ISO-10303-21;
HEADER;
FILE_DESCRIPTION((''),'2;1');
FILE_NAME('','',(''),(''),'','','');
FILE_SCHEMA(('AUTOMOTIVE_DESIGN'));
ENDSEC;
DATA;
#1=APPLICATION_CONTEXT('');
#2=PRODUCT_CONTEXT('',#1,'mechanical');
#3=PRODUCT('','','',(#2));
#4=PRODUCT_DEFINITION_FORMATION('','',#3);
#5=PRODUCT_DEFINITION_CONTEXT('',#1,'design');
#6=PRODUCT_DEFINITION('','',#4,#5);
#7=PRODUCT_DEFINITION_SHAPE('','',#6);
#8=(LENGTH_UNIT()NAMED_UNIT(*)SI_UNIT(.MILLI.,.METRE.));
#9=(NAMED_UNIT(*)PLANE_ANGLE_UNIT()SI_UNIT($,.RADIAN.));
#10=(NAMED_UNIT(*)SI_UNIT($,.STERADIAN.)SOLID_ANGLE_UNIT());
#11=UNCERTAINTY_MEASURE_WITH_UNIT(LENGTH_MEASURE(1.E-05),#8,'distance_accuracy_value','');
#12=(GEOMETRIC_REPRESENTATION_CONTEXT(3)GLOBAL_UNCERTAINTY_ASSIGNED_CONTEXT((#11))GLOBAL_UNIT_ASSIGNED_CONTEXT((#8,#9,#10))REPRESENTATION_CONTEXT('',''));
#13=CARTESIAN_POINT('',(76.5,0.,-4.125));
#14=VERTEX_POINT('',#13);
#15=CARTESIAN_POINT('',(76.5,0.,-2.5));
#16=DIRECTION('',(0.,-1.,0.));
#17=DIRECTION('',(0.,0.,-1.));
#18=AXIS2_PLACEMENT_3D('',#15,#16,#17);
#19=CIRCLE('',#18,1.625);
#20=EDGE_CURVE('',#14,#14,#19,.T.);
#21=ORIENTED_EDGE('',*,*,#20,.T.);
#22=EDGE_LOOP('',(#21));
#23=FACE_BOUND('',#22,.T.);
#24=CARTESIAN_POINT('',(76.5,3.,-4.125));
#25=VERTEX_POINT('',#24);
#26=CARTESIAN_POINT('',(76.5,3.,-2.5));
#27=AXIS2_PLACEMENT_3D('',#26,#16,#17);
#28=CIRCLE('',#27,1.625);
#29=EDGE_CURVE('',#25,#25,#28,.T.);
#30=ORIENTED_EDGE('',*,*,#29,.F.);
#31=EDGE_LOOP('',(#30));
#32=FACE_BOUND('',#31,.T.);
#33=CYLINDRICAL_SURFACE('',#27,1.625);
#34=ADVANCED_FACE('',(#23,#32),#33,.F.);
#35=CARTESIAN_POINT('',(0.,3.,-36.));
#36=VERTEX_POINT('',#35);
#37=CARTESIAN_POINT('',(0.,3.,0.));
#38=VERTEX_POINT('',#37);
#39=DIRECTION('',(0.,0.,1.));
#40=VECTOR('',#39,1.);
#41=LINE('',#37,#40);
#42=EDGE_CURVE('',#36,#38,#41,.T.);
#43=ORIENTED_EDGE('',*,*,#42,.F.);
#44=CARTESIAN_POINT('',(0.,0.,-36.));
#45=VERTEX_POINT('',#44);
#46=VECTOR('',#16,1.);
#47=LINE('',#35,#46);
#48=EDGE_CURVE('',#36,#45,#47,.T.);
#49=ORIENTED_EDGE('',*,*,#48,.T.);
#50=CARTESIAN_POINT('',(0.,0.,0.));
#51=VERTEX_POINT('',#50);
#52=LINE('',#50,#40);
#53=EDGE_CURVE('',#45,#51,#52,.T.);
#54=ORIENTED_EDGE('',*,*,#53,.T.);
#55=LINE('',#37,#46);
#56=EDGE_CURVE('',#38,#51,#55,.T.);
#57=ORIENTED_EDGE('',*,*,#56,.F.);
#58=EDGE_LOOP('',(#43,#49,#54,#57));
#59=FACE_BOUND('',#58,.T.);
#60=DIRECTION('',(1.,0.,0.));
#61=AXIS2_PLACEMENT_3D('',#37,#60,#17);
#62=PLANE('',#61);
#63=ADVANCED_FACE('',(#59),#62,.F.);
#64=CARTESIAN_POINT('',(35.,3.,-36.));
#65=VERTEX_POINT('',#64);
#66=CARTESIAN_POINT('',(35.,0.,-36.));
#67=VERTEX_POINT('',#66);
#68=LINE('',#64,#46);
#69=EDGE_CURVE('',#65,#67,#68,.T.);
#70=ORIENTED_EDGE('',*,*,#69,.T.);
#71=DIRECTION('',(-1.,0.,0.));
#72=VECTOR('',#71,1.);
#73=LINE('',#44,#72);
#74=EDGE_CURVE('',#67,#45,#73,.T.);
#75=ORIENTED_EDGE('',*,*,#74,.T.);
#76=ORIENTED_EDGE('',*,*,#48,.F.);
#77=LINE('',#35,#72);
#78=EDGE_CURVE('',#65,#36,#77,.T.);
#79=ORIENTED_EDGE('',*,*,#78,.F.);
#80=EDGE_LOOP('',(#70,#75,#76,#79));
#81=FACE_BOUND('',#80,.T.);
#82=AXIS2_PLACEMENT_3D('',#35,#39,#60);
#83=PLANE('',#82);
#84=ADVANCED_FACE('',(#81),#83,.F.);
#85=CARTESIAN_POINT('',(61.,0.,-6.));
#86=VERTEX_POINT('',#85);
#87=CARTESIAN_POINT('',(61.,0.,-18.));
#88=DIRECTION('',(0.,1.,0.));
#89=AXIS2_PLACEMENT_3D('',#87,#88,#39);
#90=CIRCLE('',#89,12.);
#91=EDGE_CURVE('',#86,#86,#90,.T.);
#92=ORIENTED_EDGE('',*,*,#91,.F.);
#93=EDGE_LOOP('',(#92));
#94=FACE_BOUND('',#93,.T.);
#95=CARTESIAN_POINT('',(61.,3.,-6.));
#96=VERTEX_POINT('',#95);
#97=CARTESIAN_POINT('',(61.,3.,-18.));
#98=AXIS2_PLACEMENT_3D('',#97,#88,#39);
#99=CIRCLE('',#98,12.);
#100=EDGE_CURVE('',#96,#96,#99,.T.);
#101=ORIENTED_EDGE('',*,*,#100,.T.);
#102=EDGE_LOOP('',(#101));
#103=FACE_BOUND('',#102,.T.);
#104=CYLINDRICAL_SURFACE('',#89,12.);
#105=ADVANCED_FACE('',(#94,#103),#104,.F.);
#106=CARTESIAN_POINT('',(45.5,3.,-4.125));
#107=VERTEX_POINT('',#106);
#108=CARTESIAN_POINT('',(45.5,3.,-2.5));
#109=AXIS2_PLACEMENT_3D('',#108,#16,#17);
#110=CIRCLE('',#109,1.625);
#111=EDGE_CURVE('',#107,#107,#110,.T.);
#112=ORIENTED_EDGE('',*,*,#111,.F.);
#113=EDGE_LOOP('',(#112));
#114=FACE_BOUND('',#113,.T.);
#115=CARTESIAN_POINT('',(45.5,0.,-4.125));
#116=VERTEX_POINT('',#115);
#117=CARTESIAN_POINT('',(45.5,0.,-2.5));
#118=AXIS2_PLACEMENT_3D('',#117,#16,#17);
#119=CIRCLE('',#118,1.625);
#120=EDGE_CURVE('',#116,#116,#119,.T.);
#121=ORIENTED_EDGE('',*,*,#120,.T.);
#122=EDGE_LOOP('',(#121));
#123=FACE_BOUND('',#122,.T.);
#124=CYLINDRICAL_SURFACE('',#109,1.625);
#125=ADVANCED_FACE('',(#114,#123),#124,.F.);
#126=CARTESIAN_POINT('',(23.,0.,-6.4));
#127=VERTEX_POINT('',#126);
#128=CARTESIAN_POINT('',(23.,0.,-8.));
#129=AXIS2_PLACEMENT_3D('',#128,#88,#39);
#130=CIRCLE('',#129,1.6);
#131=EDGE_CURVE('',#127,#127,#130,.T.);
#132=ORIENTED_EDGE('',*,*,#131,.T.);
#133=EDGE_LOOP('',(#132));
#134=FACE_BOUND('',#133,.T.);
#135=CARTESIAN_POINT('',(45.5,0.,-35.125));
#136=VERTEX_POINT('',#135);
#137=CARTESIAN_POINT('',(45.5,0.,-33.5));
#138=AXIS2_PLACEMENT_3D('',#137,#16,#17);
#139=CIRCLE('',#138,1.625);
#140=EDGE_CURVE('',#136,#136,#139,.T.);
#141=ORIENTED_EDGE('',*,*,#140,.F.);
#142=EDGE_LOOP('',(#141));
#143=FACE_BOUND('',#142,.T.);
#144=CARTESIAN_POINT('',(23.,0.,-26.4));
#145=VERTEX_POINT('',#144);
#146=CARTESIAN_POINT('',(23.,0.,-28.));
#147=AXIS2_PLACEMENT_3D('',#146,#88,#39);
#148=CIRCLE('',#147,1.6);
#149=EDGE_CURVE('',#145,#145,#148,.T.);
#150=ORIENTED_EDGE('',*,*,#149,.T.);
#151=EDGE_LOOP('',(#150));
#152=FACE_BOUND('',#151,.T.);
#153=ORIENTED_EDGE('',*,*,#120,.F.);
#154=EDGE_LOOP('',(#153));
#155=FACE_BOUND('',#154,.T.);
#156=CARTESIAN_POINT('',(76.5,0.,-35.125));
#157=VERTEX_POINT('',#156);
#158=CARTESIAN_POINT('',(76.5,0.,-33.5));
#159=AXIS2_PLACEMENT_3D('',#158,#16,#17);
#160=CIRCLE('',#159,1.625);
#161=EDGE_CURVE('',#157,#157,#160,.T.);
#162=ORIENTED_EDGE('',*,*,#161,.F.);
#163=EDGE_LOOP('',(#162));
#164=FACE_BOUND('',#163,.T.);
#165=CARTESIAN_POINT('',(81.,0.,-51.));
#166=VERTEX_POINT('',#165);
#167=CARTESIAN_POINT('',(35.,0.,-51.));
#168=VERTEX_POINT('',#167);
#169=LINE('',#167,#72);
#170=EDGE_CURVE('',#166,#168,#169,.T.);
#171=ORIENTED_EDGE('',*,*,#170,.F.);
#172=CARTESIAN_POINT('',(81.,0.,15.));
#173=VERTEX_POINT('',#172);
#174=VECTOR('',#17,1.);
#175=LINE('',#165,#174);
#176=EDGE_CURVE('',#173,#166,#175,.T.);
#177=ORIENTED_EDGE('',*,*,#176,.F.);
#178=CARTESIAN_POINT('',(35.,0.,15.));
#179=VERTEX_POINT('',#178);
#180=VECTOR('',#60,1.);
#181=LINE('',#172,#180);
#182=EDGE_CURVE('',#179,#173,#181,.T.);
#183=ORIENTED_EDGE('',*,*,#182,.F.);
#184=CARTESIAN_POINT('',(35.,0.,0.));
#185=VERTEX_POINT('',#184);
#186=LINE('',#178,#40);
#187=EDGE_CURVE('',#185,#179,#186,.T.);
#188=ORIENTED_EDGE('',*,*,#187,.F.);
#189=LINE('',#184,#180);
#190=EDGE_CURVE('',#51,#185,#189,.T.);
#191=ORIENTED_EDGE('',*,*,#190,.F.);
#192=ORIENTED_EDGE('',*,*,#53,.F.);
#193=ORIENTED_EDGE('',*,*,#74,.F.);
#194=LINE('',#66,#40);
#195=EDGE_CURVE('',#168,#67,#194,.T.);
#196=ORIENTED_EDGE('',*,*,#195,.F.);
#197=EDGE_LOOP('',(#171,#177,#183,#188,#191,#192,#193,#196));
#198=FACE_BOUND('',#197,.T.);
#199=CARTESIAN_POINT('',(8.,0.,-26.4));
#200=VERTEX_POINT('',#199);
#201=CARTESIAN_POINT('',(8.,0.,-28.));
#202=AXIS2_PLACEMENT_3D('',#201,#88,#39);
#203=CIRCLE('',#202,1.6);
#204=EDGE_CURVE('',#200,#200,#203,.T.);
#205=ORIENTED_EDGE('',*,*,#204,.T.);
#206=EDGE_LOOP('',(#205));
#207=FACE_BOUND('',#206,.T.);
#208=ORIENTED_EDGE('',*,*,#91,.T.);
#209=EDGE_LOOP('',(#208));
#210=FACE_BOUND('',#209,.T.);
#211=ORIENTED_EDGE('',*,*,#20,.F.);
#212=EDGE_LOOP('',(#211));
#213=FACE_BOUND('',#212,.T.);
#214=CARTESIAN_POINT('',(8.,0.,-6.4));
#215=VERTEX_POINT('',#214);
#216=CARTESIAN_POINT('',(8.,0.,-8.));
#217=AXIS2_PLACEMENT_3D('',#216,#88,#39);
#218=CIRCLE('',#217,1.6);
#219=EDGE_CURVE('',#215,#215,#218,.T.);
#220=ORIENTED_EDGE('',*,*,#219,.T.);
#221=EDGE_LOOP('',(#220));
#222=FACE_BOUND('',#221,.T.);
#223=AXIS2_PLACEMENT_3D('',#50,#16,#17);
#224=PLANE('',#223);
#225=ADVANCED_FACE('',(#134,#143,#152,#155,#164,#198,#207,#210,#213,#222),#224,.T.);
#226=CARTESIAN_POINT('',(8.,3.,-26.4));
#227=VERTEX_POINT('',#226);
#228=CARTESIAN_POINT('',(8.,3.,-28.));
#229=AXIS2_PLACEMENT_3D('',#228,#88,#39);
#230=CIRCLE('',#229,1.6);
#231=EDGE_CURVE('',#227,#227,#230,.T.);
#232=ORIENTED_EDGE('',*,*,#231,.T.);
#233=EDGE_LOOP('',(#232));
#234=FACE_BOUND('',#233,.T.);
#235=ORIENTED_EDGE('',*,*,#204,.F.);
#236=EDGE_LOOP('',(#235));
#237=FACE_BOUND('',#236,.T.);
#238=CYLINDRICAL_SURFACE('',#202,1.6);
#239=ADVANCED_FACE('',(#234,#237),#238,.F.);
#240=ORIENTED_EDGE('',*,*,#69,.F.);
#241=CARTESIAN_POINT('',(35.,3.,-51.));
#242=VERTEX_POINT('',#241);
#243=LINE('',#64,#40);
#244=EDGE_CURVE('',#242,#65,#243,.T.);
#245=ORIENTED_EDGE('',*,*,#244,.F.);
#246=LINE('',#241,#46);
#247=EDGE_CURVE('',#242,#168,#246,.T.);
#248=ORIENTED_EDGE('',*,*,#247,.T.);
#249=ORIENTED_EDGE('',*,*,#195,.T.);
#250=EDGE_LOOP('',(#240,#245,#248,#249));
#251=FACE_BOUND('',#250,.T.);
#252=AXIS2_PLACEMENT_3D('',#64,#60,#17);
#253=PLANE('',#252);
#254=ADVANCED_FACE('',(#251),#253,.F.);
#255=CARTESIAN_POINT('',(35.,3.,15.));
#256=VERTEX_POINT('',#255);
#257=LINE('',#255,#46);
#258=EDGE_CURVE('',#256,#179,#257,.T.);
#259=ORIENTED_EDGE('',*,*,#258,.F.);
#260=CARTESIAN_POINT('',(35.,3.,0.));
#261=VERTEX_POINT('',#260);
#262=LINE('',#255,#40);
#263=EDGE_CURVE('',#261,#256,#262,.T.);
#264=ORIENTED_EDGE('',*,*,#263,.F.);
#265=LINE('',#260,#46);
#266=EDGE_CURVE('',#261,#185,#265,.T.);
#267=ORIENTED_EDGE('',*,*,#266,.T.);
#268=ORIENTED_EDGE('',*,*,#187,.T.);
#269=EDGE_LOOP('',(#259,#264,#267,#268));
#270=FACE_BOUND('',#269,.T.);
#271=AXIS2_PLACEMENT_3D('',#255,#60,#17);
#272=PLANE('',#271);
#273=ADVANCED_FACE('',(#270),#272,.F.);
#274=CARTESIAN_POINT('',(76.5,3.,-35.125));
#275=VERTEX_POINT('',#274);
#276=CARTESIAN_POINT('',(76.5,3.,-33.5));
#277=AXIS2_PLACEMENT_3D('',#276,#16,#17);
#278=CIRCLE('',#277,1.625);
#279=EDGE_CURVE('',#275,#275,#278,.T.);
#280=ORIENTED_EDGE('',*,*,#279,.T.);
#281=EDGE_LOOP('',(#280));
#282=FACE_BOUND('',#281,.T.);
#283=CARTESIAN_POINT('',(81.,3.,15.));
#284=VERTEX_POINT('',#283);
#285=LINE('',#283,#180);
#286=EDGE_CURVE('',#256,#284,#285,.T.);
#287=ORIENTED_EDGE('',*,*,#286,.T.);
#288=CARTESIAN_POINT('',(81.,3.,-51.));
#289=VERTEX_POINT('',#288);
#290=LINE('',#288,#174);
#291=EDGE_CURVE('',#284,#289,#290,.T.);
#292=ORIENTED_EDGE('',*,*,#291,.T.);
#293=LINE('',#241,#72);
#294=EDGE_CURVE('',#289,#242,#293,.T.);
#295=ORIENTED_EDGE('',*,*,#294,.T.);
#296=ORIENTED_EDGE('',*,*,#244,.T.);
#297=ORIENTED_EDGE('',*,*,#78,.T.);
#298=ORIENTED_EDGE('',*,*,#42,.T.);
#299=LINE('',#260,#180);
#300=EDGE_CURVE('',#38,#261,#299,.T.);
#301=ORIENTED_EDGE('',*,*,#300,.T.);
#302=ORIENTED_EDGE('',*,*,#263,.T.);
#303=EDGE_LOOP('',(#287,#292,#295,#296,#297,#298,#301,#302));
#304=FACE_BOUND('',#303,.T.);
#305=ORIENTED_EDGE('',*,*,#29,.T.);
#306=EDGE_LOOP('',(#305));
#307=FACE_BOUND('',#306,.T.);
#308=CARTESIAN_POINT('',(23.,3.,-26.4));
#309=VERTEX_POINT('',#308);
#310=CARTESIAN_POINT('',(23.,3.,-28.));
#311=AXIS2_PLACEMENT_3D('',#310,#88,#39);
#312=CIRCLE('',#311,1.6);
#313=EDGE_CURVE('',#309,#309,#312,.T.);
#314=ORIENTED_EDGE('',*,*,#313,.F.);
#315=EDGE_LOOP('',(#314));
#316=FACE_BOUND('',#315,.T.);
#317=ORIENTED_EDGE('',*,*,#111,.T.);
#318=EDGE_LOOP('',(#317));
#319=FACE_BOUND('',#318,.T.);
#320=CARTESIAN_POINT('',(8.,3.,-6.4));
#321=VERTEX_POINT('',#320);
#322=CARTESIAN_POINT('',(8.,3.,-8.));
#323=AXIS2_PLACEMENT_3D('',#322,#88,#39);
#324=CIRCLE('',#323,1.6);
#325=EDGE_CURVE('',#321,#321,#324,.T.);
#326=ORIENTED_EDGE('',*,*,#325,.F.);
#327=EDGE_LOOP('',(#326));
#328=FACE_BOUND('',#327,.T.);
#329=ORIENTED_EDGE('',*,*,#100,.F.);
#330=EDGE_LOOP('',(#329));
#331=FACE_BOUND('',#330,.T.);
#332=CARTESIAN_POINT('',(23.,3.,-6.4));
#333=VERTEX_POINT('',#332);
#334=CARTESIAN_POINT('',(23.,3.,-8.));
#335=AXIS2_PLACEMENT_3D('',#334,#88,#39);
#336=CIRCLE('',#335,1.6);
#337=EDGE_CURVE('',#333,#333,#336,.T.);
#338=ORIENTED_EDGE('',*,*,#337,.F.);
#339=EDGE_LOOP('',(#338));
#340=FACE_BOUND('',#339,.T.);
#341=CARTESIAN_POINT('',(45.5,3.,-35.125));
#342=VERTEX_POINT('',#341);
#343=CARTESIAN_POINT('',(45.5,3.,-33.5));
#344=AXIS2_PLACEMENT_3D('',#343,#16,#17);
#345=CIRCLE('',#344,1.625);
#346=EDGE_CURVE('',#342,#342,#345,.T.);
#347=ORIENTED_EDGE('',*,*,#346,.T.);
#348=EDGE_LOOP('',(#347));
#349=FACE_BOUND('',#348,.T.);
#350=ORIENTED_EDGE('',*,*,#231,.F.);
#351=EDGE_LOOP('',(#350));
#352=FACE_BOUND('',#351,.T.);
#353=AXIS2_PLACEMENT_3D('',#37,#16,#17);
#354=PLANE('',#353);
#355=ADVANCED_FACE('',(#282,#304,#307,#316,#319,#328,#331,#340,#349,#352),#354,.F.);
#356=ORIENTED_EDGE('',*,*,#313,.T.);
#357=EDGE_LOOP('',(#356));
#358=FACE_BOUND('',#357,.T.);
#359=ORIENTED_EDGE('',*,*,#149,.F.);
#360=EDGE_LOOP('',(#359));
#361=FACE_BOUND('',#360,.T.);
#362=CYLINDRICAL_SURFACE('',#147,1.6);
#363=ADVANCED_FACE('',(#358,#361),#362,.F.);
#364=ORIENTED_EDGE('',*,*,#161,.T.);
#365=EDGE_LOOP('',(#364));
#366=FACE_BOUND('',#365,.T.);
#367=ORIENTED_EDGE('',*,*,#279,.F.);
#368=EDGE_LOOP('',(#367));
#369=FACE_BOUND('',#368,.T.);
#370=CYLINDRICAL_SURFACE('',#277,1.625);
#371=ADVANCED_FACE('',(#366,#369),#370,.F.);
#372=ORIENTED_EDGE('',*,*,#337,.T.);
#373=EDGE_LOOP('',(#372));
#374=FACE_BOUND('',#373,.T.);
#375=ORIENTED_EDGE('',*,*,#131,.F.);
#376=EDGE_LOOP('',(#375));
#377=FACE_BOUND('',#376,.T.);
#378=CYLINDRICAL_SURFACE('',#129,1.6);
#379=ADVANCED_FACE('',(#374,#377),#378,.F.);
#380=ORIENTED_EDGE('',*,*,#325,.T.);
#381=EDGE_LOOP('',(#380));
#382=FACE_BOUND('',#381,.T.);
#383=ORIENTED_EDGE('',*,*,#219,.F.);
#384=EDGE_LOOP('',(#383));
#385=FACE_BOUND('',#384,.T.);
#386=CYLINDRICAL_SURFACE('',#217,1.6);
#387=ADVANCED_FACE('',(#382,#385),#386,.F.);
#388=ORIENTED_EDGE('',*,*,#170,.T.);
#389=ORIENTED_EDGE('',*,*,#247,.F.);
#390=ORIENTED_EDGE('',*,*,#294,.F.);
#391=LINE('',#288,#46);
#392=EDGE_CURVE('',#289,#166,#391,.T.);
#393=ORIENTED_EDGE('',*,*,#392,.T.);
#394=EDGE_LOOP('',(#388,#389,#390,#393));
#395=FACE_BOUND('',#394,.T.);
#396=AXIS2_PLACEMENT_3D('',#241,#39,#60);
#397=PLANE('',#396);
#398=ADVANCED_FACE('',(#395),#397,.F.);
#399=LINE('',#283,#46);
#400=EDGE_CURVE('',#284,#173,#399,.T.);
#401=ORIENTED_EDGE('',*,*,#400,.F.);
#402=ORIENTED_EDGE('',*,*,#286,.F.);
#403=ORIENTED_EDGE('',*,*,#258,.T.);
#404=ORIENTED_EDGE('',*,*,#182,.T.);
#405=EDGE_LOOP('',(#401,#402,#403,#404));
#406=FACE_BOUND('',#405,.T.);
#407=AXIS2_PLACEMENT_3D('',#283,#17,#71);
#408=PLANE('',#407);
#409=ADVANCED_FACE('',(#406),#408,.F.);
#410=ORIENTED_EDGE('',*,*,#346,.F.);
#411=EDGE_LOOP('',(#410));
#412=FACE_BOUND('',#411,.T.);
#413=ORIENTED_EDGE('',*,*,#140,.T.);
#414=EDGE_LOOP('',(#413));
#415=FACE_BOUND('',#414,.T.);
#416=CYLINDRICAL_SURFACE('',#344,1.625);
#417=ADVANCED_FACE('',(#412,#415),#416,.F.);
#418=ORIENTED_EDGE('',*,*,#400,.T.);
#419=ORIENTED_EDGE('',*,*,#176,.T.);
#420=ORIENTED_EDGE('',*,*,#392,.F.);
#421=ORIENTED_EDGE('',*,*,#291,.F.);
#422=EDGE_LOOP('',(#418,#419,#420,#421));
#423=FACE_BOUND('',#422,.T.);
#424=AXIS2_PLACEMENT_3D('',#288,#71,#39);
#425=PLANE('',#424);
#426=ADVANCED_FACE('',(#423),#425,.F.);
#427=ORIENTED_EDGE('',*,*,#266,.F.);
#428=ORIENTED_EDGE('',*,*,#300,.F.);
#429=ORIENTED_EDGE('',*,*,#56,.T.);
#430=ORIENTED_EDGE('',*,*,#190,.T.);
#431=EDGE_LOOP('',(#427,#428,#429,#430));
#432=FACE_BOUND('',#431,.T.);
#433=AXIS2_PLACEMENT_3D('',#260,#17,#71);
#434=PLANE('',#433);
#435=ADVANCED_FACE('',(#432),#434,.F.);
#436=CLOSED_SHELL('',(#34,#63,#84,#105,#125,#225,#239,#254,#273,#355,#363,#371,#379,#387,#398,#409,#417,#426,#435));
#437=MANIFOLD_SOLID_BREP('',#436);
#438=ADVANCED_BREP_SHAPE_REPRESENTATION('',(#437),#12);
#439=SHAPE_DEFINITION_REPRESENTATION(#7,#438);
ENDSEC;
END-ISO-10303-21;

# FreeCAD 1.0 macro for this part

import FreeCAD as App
import Part
import Sketcher
from FreeCAD import Vector


def add_polygon(sketch, points):
    """Adds a closed chain of lines whose ends are joined by coincident constraints."""
    first, n = sketch.GeometryCount, len(points)
    for a, b in zip(points, points[1:] + points[:1]):
        sketch.addGeometry(Part.LineSegment(App.Vector(*a, 0), App.Vector(*b, 0)), False)
    for i in range(n):
        sketch.addConstraint(Sketcher.Constraint("Coincident", first + i, 2, first + (i + 1) % n, 1))

doc = App.newDocument("Part")
params = doc.addObject("Spreadsheet::Sheet", "Params")
for row, (alias, value) in enumerate([
    ("sketch1_width", "35 mm"),
    ("sketch1_width2", "46 mm"),
    ("sketch1_height", "36 mm"),
    ("sketch1_height2", "15 mm"),
    ("pad1_length", "3 mm"),
    ("sketch2_diameter", "24 mm"),
    ("sketch2_diameter2", "3.2 mm"),
    ("pocket1_length", "3 mm"),
    ("sketch3_diameter", "3.25 mm"),
], start=1):
    params.set(f"A{row}", alias)
    params.set(f"B{row}", "=" + value)
    params.setAlias(f"B{row}", alias)

body = doc.addObject("PartDesign::Body", "Body")

sketch1 = doc.addObject("Sketcher::SketchObject", "Sketch")
body.addObject(sketch1)
sketch1.AttachmentSupport = (doc.XZ_Plane, [""])
sketch1.MapMode = "FlatFace"
add_polygon(sketch1, [(0, -36), (0, 0), (35, 0), (35, 15), (81, 15), (81, -51), (35, -51), (35, -36)])
sketch1.addConstraint([
    Sketcher.Constraint("Vertical", 0),
    Sketcher.Constraint("Horizontal", 1),
    Sketcher.Constraint("Vertical", 2),
    Sketcher.Constraint("Horizontal", 3),
    Sketcher.Constraint("Vertical", 4),
    Sketcher.Constraint("Horizontal", 5),
    Sketcher.Constraint("Vertical", 6),
    Sketcher.Constraint("Horizontal", 7),
    Sketcher.Constraint("Coincident", 0, 2, -1, 1),
    Sketcher.Constraint("Vertical", 2, 2, 5, 2),
    Sketcher.Constraint("Equal", 2, 6),
    Sketcher.Constraint("DistanceX", 1, 1, 1, 2, 35.0),
    Sketcher.Constraint("DistanceX", 3, 1, 3, 2, 46.0),
    Sketcher.Constraint("DistanceY", 0, 1, 0, 2, 36.0),
    Sketcher.Constraint("DistanceY", 2, 1, 2, 2, 15.0),
])
sketch1.setExpression("Constraints[19]", "Params.sketch1_width")
sketch1.setExpression("Constraints[20]", "Params.sketch1_width2")
sketch1.setExpression("Constraints[21]", "Params.sketch1_height")
sketch1.setExpression("Constraints[22]", "Params.sketch1_height2")
pad1 = doc.addObject("PartDesign::Pad", "Pad")
body.addObject(pad1)
pad1.Profile = sketch1
pad1.setExpression("Length", "Params.pad1_length")
pad1.Reversed = True

sketch2 = doc.addObject("Sketcher::SketchObject", "Sketch001")
body.addObject(sketch2)
sketch2.AttachmentSupport = (doc.XZ_Plane, [""])
sketch2.MapMode = "FlatFace"
sketch2.AttachmentOffset = App.Placement(Vector(0, 0, -3), App.Rotation())
sketch2.addGeometry([
    Part.Circle(Vector(8, -28, 0), Vector(0, 0, 1), 1.6),
    Part.Circle(Vector(23, -28, 0), Vector(0, 0, 1), 1.6),
    Part.Circle(Vector(8, -8, 0), Vector(0, 0, 1), 1.6),
    Part.Circle(Vector(23, -8, 0), Vector(0, 0, 1), 1.6),
    Part.Circle(Vector(61, -18, 0), Vector(0, 0, 1), 12),
], False)
sketch2.addConstraint([
    Sketcher.Constraint("Equal", 0, 1),
    Sketcher.Constraint("Equal", 1, 2),
    Sketcher.Constraint("Equal", 2, 3),
    Sketcher.Constraint("Horizontal", 0, 3, 1, 3),
    Sketcher.Constraint("Horizontal", 2, 3, 3, 3),
    Sketcher.Constraint("Vertical", 0, 3, 2, 3),
    Sketcher.Constraint("Vertical", 1, 3, 3, 3),
    Sketcher.Constraint("Diameter", 4, 24.0),
    Sketcher.Constraint("Diameter", 0, 3.2),
    Sketcher.Constraint("DistanceX", -1, 1, 0, 3, 8.0),
    Sketcher.Constraint("DistanceY", 0, 3, -1, 1, 28.0),
    Sketcher.Constraint("DistanceX", -1, 1, 1, 3, 23.0),
    Sketcher.Constraint("DistanceY", 2, 3, -1, 1, 8.0),
    Sketcher.Constraint("DistanceX", -1, 1, 4, 3, 61.0),
    Sketcher.Constraint("DistanceY", 4, 3, -1, 1, 18.0),
])
sketch2.setExpression("Constraints[7]", "Params.sketch2_diameter")
sketch2.setExpression("Constraints[8]", "Params.sketch2_diameter2")
pocket1 = doc.addObject("PartDesign::Pocket", "Pocket")
body.addObject(pocket1)
pocket1.Profile = sketch2
pocket1.setExpression("Length", "Params.pocket1_length")
pocket1.Reversed = True

sketch3 = doc.addObject("Sketcher::SketchObject", "Sketch002")
body.addObject(sketch3)
sketch3.AttachmentSupport = (doc.XZ_Plane, [""])
sketch3.MapMode = "FlatFace"
sketch3.addGeometry([
    Part.Circle(Vector(45.5, -33.5, 0), Vector(0, 0, 1), 1.6),
    Part.Circle(Vector(76.5, -33.5, 0), Vector(0, 0, 1), 1.6),
    Part.Circle(Vector(76.5, -2.5, 0), Vector(0, 0, 1), 1.6),
    Part.Circle(Vector(45.5, -2.5, 0), Vector(0, 0, 1), 1.6),
], False)
sketch3.addConstraint([
    Sketcher.Constraint("Equal", 0, 1),
    Sketcher.Constraint("Equal", 1, 2),
    Sketcher.Constraint("Equal", 2, 3),
    Sketcher.Constraint("Horizontal", 0, 3, 1, 3),
    Sketcher.Constraint("Horizontal", 2, 3, 3, 3),
    Sketcher.Constraint("Vertical", 1, 3, 2, 3),
    Sketcher.Constraint("Vertical", 0, 3, 3, 3),
    Sketcher.Constraint("Diameter", 0, 3.25),
    Sketcher.Constraint("DistanceX", 0, 3, 1, 3, 31.0),
    Sketcher.Constraint("DistanceY", 1, 3, 2, 3, 31.0),
    Sketcher.Constraint("DistanceX", -1, 1, 0, 3, 45.5),
    Sketcher.Constraint("DistanceY", 0, 3, -1, 1, 33.5),
])
sketch3.setExpression("Constraints[7]", "Params.sketch3_diameter")
pocket2 = doc.addObject("PartDesign::Pocket", "Pocket001")
body.addObject(pocket2)
pocket2.Profile = sketch3
pocket2.Type = "ThroughAll"

doc.recompute()
